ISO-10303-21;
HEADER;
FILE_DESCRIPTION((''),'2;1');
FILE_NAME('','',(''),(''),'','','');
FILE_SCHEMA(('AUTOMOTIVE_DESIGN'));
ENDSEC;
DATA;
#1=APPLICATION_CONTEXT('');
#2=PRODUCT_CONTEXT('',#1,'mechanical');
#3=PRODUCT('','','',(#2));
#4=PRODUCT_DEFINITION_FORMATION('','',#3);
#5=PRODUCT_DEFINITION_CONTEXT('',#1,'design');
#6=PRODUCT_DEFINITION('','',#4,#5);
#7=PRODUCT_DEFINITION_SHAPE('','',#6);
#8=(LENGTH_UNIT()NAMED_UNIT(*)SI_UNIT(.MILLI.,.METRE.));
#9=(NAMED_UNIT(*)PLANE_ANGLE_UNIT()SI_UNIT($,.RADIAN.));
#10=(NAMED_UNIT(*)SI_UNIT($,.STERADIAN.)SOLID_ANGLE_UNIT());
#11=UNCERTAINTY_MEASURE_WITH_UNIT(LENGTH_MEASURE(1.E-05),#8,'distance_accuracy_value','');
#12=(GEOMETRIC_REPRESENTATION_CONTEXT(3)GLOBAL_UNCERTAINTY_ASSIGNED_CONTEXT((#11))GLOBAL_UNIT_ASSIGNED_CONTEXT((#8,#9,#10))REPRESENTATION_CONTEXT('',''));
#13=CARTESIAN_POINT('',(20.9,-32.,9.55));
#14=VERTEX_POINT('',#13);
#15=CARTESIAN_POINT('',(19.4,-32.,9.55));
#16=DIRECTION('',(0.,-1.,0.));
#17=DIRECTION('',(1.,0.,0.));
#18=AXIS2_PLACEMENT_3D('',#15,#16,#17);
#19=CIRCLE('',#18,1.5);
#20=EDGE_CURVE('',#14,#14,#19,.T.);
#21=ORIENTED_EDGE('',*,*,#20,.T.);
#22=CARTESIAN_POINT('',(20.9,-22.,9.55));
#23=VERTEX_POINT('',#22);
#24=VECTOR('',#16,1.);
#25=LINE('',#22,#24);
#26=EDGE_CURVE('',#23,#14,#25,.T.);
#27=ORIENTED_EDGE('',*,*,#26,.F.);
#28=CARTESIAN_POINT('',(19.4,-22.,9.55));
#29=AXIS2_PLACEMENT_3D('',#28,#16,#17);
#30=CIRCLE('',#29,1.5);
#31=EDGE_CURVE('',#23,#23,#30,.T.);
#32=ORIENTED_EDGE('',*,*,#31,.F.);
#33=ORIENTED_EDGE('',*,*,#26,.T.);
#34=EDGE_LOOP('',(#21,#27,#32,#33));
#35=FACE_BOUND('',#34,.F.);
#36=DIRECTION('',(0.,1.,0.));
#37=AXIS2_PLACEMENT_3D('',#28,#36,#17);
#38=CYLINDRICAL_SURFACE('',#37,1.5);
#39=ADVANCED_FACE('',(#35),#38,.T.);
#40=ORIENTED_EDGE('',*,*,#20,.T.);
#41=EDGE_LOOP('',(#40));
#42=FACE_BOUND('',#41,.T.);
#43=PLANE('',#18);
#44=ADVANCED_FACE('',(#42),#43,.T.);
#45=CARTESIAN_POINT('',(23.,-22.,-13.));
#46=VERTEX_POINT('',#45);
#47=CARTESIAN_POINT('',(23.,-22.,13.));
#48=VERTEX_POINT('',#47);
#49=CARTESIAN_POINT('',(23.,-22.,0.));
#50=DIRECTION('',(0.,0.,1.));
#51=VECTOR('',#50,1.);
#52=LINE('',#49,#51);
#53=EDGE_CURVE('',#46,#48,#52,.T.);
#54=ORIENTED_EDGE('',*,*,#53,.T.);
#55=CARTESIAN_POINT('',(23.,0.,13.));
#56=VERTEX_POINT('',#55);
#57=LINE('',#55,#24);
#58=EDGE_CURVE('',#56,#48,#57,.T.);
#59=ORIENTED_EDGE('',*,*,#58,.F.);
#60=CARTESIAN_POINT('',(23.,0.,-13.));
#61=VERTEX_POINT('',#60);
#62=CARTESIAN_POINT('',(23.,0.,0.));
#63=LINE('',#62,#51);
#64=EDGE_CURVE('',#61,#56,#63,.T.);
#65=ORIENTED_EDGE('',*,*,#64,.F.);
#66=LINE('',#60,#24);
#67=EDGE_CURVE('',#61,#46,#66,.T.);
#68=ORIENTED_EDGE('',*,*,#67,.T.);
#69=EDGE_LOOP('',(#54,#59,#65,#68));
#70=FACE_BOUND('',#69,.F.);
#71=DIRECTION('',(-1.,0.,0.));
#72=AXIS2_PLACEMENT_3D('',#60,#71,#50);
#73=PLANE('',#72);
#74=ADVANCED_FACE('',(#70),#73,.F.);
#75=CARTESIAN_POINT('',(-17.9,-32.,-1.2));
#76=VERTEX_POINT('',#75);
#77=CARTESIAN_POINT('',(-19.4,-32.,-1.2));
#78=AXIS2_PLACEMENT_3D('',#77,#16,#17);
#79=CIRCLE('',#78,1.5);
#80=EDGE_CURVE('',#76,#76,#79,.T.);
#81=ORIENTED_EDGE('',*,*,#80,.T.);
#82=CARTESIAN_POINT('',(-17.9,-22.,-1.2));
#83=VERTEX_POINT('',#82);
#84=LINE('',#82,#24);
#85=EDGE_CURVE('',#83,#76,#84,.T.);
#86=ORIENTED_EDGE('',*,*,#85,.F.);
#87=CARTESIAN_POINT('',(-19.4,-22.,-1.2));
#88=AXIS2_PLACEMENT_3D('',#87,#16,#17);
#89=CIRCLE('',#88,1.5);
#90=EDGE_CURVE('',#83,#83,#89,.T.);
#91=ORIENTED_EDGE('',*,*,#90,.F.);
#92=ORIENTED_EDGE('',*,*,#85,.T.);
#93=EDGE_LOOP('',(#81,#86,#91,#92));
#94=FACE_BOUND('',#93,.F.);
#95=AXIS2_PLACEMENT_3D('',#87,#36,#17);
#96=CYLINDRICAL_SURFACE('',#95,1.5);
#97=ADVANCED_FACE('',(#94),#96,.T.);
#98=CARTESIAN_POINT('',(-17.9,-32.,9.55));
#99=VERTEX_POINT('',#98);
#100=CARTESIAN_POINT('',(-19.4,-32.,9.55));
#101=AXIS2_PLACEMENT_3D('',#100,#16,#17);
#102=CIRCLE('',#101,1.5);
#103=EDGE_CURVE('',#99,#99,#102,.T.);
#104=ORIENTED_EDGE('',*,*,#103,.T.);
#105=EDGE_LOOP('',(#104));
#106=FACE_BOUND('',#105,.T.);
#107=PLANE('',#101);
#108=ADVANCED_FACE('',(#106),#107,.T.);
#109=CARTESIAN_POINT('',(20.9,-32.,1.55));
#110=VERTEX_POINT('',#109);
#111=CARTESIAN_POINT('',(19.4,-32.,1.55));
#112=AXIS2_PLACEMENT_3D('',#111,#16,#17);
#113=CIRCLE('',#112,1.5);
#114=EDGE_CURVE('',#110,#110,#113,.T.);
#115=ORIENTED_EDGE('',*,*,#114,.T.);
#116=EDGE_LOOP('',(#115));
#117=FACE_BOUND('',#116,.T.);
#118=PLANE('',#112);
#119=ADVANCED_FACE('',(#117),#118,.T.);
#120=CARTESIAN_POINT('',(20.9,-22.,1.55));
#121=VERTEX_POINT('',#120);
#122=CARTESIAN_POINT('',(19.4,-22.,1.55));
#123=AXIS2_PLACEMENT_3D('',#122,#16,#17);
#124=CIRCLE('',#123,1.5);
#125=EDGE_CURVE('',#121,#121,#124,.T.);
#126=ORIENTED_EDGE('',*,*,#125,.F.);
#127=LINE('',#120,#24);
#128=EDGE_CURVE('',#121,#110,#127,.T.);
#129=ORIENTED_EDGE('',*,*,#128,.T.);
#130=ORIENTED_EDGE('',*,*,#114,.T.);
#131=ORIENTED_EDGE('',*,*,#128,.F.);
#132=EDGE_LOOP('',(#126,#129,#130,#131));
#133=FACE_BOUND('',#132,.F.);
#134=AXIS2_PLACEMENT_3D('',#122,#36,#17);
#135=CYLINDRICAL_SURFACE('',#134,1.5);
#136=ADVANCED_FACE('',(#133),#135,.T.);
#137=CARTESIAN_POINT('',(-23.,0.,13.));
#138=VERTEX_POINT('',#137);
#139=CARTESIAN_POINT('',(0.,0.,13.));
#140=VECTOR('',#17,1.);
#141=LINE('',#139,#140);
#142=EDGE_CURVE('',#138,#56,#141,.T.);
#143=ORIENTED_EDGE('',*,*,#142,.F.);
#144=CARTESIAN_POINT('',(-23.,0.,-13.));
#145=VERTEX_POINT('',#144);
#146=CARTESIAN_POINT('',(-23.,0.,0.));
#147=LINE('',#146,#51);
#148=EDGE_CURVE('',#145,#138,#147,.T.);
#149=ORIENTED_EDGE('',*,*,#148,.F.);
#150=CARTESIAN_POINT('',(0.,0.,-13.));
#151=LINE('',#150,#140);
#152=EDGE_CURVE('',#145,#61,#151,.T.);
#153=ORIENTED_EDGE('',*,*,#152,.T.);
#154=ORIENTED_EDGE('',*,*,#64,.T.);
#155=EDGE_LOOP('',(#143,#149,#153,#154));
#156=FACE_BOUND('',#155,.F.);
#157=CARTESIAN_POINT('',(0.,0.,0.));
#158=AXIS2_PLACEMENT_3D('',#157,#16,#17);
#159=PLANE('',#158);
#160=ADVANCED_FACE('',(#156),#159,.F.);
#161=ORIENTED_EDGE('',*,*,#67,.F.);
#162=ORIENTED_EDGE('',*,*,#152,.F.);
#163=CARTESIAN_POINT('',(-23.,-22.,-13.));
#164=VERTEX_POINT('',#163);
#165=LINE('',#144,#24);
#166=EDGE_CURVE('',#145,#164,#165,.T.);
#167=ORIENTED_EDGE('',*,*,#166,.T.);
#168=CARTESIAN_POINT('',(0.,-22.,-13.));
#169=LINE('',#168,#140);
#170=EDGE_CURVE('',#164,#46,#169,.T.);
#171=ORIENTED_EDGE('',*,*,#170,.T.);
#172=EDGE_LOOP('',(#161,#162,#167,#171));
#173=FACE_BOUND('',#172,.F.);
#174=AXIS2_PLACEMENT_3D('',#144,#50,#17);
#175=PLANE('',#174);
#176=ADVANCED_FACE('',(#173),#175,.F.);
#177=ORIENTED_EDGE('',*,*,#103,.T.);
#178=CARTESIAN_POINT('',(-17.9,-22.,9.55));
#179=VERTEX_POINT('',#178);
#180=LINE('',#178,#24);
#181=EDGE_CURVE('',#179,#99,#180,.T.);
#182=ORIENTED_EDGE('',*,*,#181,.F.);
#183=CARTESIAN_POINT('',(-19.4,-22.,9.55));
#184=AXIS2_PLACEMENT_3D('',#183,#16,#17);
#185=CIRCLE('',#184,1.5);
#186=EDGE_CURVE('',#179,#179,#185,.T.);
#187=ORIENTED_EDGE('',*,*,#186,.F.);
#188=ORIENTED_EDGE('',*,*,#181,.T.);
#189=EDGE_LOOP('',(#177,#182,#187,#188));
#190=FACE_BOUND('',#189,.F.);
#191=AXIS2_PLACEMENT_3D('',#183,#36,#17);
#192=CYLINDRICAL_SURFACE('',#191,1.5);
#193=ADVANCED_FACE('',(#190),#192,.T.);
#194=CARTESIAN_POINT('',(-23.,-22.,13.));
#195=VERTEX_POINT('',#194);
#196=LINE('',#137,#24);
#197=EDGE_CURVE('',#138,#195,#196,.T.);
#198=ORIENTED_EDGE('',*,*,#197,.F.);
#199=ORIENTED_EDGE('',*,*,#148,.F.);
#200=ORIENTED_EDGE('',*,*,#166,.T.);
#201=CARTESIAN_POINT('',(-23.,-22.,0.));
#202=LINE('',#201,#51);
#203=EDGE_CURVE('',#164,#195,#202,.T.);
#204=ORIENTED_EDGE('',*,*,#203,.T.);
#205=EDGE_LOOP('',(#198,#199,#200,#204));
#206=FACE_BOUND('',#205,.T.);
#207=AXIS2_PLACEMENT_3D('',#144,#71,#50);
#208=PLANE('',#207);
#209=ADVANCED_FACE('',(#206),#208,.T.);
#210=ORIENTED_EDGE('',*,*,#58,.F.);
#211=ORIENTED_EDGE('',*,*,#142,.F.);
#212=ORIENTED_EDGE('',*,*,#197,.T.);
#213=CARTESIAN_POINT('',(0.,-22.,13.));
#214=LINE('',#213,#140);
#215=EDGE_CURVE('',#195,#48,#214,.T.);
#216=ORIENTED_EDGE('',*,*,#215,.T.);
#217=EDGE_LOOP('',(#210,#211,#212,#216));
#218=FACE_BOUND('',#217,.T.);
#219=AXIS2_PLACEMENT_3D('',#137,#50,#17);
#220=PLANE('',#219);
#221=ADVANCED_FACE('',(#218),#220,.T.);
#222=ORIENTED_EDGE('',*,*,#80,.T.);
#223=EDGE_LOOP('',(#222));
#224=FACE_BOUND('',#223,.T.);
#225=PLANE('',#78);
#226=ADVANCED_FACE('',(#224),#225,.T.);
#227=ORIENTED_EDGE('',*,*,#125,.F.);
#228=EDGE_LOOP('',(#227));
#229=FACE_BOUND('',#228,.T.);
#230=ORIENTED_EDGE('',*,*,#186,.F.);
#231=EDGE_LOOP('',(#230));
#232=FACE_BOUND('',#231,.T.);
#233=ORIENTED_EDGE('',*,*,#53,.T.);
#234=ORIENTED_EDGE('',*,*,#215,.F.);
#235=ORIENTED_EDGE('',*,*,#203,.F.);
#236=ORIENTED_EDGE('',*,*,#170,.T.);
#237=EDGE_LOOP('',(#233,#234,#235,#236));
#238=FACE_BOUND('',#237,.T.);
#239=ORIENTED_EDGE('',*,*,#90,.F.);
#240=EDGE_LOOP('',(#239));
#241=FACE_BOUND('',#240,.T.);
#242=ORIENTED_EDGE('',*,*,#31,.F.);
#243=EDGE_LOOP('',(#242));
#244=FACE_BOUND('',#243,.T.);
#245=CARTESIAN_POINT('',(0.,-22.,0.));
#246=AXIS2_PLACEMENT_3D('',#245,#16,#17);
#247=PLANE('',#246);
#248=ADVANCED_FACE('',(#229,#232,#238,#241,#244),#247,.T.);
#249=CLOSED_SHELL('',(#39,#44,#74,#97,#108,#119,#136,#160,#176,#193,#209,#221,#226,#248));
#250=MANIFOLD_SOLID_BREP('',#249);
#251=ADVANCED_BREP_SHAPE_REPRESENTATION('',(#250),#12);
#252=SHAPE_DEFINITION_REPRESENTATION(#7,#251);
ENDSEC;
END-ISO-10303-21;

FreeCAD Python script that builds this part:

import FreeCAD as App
import Part
import Sketcher

V = App.Vector


def add_polygon(sketch, points):
    """Adds a closed chain of lines whose ends are joined by coincident constraints."""
    first, n = sketch.GeometryCount, len(points)
    for a, b in zip(points, points[1:] + points[:1]):
        sketch.addGeometry(Part.LineSegment(App.Vector(*a, 0), App.Vector(*b, 0)), False)
    for i in range(n):
        sketch.addConstraint(Sketcher.Constraint("Coincident", first + i, 2, first + (i + 1) % n, 1))

doc = App.newDocument("Part")
body = doc.addObject("PartDesign::Body", "Body")

# Sketch on XZ plane
sketch1 = body.newObject("Sketcher::SketchObject", "Sketch")
sketch1.AttachmentSupport = (doc.getObject("XZ_Plane"), [""])
sketch1.MapMode = "FlatFace"
add_polygon(sketch1, [(-23, 13), (-23, -13), (23, -13), (23, 13)])  # lines 0-3
sketch1.addConstraint([
    Sketcher.Constraint("Vertical", 0),
    Sketcher.Constraint("Horizontal", 1),
    Sketcher.Constraint("Vertical", 2),
    Sketcher.Constraint("Horizontal", 3),
    Sketcher.Constraint("Symmetric", 0, 2, 2, 2, -1, 1),
    Sketcher.Constraint("DistanceX", 1, 1, 1, 2, 46.0),
    Sketcher.Constraint("DistanceY", 0, 2, 0, 1, 26.0),
])
pad1 = body.newObject("PartDesign::Pad", "Pad")
pad1.Profile = sketch1
pad1.Length = 22

# Sketch on XZ plane
sketch2 = body.newObject("Sketcher::SketchObject", "Sketch001")
sketch2.AttachmentSupport = (doc.getObject("XZ_Plane"), [""])
sketch2.MapMode = "FlatFace"
sketch2.AttachmentOffset = App.Placement(V(0, 0, 22), App.Rotation())
sketch2.addGeometry([
    Part.Circle(V(-19.4, 9.6, 0), V(0, 0, 1), 1.5),
    Part.Circle(V(-19.4, -1.2, 0), V(0, 0, 1), 1.5),
    Part.Circle(V(19.4, 9.6, 0), V(0, 0, 1), 1.5),
    Part.Circle(V(19.4, 1.6, 0), V(0, 0, 1), 1.5),
], False)
sketch2.addConstraint([
    Sketcher.Constraint("Equal", 0, 1),
    Sketcher.Constraint("Equal", 1, 2),
    Sketcher.Constraint("Equal", 2, 3),
    Sketcher.Constraint("Symmetric", 0, 3, 2, 3, -2),
    Sketcher.Constraint("Vertical", 0, 3, 1, 3),
    Sketcher.Constraint("Vertical", 2, 3, 3, 3),
    Sketcher.Constraint("Diameter", 0, 3.0),
    Sketcher.Constraint("DistanceY", 3, 3, 2, 3, 8.0),
    Sketcher.Constraint("DistanceX", 0, 3, -1, 1, 19.4),
    Sketcher.Constraint("DistanceY", 1, 3, -1, 1, 1.2),
    Sketcher.Constraint("DistanceY", -1, 1, 0, 3, 9.55),
])
pad2 = body.newObject("PartDesign::Pad", "Pad001")
pad2.Profile = sketch2
pad2.Length = 10

doc.recompute()
